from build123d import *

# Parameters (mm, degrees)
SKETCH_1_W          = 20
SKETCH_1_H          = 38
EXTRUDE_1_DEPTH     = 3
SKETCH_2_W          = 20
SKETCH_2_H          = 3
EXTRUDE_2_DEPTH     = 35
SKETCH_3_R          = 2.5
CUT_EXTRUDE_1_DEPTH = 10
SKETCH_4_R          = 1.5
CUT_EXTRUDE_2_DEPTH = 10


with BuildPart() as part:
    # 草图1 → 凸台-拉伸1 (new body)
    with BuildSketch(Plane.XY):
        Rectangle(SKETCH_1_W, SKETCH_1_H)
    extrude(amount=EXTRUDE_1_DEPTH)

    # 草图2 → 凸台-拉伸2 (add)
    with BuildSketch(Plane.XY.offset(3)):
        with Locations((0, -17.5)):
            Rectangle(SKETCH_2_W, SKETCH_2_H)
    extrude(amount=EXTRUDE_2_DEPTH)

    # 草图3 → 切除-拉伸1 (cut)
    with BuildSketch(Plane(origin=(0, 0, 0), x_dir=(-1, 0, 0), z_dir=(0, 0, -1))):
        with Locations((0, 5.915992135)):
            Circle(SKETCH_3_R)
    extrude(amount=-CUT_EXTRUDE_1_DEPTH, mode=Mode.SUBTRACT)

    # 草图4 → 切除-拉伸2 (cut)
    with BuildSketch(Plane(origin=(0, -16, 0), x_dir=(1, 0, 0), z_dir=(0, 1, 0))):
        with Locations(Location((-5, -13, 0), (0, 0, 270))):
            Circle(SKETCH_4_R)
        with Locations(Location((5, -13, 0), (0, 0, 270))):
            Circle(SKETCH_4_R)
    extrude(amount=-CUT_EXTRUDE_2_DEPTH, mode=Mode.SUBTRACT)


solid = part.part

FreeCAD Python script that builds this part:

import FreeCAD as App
import Part
import Sketcher
from FreeCAD import Vector

doc = App.newDocument("Part")
body = doc.addObject("PartDesign::Body", "Body")

# Sketch on XY plane
sketch1 = body.newObject("Sketcher::SketchObject", "Sketch")
sketch1.AttachmentSupport = (doc.getObject("XY_Plane"), [""])
sketch1.MapMode = "FlatFace"
sketch1.addGeometry([
    Part.LineSegment(Vector(-10, 19, 0), Vector(-10, -19, 0)),
    Part.LineSegment(Vector(-10, -19, 0), Vector(10, -19, 0)),
    Part.LineSegment(Vector(10, -19, 0), Vector(10, 19, 0)),
    Part.LineSegment(Vector(10, 19, 0), Vector(-10, 19, 0)),
], False)
sketch1.addConstraint([
    Sketcher.Constraint("Coincident", 0, 2, 1, 1),
    Sketcher.Constraint("Coincident", 1, 2, 2, 1),
    Sketcher.Constraint("Coincident", 2, 2, 3, 1),
    Sketcher.Constraint("Coincident", 3, 2, 0, 1),
    Sketcher.Constraint("Vertical", 0),
    Sketcher.Constraint("Horizontal", 1),
    Sketcher.Constraint("Vertical", 2),
    Sketcher.Constraint("Horizontal", 3),
    Sketcher.Constraint("Symmetric", 0, 2, 2, 2, -1, 1),
    Sketcher.Constraint("DistanceX", 1, 1, 1, 2, 20.0),
    Sketcher.Constraint("DistanceY", 0, 2, 0, 1, 38.0),
])
pad1 = body.newObject("PartDesign::Pad", "Pad")
pad1.Profile = sketch1
pad1.Length = 3

# Sketch on XY plane
sketch2 = body.newObject("Sketcher::SketchObject", "Sketch001")
sketch2.AttachmentSupport = (doc.getObject("XY_Plane"), [""])
sketch2.MapMode = "FlatFace"
sketch2.AttachmentOffset = App.Placement(Vector(0, 0, 3), App.Rotation())
sketch2.addGeometry([
    Part.LineSegment(Vector(-10, -16, 0), Vector(-10, -19, 0)),
    Part.LineSegment(Vector(-10, -19, 0), Vector(10, -19, 0)),
    Part.LineSegment(Vector(10, -19, 0), Vector(10, -16, 0)),
    Part.LineSegment(Vector(10, -16, 0), Vector(-10, -16, 0)),
], False)
sketch2.addConstraint([
    Sketcher.Constraint("Coincident", 0, 2, 1, 1),
    Sketcher.Constraint("Coincident", 1, 2, 2, 1),
    Sketcher.Constraint("Coincident", 2, 2, 3, 1),
    Sketcher.Constraint("Coincident", 3, 2, 0, 1),
    Sketcher.Constraint("Vertical", 0),
    Sketcher.Constraint("Horizontal", 1),
    Sketcher.Constraint("Vertical", 2),
    Sketcher.Constraint("Horizontal", 3),
    Sketcher.Constraint("DistanceX", 1, 1, 1, 2, 20.0),
    Sketcher.Constraint("DistanceY", 0, 2, 0, 1, 3.0),
    Sketcher.Constraint("DistanceX", 0, 2, -1, 1, 10.0),
    Sketcher.Constraint("DistanceY", 0, 2, -1, 1, 19.0),
])
pad2 = body.newObject("PartDesign::Pad", "Pad001")
pad2.Profile = sketch2
pad2.Length = 35

# Sketch on XY plane
sketch3 = body.newObject("Sketcher::SketchObject", "Sketch002")
sketch3.AttachmentSupport = (doc.getObject("XY_Plane"), [""])
sketch3.MapMode = "FlatFace"
sketch3.addGeometry(Part.Circle(Vector(0, 5.9, 0), Vector(0, 0, 1), 2.5), False)
sketch3.addConstraint([
    Sketcher.Constraint("PointOnObject", 0, 3, -2),
    Sketcher.Constraint("Diameter", 0, 5.0),
    Sketcher.Constraint("DistanceY", -1, 1, 0, 3, 5.915992),
])
pocket1 = body.newObject("PartDesign::Pocket", "Pocket")
pocket1.Profile = sketch3
pocket1.Length = 10
pocket1.Reversed = True

# Sketch on XZ plane
sketch4 = body.newObject("Sketcher::SketchObject", "Sketch003")
sketch4.AttachmentSupport = (doc.getObject("XZ_Plane"), [""])
sketch4.MapMode = "FlatFace"
sketch4.AttachmentOffset = App.Placement(Vector(0, 0, 16), App.Rotation())
sketch4.addGeometry([
    Part.Circle(Vector(-5, 13, 0), Vector(0, 0, 1), 1.5),
    Part.Circle(Vector(5, 13, 0), Vector(0, 0, 1), 1.5),
], False)
sketch4.addConstraint([
    Sketcher.Constraint("Equal", 0, 1),
    Sketcher.Constraint("Symmetric", 0, 3, 1, 3, -2),
    Sketcher.Constraint("Diameter", 0, 3.0),
    Sketcher.Constraint("DistanceX", 0, 3, -1, 1, 5.0),
    Sketcher.Constraint("DistanceY", -1, 1, 0, 3, 13.0),
])
pocket2 = body.newObject("PartDesign::Pocket", "Pocket001")
pocket2.Profile = sketch4
pocket2.Length = 10
pocket2.Reversed = True

doc.recompute()
